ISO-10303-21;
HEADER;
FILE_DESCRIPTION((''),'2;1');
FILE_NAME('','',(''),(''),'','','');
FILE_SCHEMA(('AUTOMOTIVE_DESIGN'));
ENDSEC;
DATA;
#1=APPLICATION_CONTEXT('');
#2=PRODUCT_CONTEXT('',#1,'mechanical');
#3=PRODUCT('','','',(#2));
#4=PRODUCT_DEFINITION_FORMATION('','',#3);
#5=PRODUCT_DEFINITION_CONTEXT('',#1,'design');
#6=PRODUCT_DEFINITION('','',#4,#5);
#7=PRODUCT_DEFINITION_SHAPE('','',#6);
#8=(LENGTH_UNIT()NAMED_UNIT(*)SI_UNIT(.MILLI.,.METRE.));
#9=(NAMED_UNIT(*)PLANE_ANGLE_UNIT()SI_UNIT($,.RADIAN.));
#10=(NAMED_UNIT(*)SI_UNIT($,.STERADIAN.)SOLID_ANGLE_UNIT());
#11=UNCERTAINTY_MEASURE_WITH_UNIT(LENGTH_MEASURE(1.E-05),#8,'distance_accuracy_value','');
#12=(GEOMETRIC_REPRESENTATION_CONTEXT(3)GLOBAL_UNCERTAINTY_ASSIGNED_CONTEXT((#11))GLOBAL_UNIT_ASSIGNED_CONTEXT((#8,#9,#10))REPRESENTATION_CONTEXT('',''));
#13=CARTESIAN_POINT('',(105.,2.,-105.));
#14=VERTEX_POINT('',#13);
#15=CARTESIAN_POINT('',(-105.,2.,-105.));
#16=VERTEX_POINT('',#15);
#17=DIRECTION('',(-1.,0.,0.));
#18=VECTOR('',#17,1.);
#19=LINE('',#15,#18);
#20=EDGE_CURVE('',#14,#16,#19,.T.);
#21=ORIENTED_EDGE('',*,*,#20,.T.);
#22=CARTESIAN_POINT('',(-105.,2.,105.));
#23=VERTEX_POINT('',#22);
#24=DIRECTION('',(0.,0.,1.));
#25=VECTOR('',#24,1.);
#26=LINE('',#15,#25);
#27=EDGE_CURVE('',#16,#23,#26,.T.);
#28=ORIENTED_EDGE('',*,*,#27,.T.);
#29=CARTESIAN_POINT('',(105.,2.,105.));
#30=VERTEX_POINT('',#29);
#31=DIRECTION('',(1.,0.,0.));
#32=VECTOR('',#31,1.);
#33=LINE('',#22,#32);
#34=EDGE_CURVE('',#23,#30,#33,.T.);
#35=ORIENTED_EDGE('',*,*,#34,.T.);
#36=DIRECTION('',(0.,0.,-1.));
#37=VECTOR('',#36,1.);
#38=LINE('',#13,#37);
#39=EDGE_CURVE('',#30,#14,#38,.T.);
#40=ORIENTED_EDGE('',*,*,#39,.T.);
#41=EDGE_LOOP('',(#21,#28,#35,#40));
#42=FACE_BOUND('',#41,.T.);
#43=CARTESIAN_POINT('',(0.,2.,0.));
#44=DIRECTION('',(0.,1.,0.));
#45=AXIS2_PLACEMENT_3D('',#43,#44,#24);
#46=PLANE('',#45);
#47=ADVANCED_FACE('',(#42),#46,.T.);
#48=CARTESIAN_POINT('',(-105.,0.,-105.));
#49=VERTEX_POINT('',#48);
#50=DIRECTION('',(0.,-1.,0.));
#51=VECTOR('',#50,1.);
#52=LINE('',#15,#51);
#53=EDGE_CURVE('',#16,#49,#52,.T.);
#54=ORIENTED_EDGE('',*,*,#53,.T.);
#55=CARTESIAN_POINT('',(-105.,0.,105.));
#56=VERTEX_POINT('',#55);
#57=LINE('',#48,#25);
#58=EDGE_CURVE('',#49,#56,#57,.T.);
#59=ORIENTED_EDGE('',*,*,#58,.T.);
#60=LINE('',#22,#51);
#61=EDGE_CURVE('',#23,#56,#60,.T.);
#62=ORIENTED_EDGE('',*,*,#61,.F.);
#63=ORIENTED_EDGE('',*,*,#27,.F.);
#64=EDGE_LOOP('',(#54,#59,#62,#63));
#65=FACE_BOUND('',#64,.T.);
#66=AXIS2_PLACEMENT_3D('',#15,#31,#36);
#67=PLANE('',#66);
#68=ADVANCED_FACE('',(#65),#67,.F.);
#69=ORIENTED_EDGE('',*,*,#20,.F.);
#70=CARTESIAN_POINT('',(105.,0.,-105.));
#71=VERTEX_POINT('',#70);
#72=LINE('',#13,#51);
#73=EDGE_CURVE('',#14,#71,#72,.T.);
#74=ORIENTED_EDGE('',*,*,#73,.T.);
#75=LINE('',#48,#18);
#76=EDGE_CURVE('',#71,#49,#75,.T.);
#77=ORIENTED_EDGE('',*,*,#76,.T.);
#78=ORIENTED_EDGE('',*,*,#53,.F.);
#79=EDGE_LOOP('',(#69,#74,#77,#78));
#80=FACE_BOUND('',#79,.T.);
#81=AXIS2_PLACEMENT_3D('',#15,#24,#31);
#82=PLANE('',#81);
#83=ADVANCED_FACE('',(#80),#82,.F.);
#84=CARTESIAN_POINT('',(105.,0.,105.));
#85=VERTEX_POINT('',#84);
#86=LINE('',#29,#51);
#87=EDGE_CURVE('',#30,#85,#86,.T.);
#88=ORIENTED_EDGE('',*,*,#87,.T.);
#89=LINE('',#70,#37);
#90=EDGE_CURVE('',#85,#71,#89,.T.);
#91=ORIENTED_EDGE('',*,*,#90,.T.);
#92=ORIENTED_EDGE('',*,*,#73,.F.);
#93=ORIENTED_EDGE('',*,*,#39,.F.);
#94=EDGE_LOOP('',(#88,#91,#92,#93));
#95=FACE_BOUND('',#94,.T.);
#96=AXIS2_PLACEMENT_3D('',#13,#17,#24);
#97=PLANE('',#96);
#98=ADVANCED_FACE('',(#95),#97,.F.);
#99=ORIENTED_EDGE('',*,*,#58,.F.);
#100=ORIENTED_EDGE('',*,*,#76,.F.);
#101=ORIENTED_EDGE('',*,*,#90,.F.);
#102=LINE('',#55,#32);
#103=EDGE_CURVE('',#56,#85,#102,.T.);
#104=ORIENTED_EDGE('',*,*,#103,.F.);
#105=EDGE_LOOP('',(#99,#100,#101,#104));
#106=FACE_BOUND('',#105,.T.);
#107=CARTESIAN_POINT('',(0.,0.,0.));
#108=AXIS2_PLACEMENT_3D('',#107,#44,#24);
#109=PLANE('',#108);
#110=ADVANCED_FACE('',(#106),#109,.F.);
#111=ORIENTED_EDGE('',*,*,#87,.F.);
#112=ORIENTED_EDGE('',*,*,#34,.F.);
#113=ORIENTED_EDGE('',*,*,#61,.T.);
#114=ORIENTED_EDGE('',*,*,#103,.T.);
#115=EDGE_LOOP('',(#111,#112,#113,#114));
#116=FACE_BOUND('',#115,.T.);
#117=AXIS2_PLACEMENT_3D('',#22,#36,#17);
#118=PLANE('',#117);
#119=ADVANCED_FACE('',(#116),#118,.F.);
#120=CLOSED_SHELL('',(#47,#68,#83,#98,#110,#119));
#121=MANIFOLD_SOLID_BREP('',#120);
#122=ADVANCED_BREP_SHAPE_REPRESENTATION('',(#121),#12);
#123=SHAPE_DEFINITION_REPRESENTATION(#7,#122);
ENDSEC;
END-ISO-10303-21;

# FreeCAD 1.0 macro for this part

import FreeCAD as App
import Part
import Sketcher
from FreeCAD import Vector

doc = App.newDocument("Part")
body = doc.addObject("PartDesign::Body", "Body")

sketch1 = body.newObject("Sketcher::SketchObject", "Sketch")
sketch1.AttachmentSupport = (doc.getObject("XZ_Plane"), [""])
sketch1.MapMode = "FlatFace"
sketch1.addGeometry(Part.LineSegment(Vector(-105, -105, 0), Vector(-105, 105, 0)), False)
sketch1.addGeometry(Part.LineSegment(Vector(-105, 105, 0), Vector(105, 105, 0)), False)
sketch1.addGeometry(Part.LineSegment(Vector(105, 105, 0), Vector(105, -105, 0)), False)
sketch1.addGeometry(Part.LineSegment(Vector(105, -105, 0), Vector(-105, -105, 0)), False)
sketch1.addConstraint(Sketcher.Constraint("Coincident", 0, 2, 1, 1))
sketch1.addConstraint(Sketcher.Constraint("Coincident", 1, 2, 2, 1))
sketch1.addConstraint(Sketcher.Constraint("Coincident", 2, 2, 3, 1))
sketch1.addConstraint(Sketcher.Constraint("Coincident", 3, 2, 0, 1))
sketch1.addConstraint(Sketcher.Constraint("Vertical", 0))
sketch1.addConstraint(Sketcher.Constraint("Horizontal", 1))
sketch1.addConstraint(Sketcher.Constraint("Vertical", 2))
sketch1.addConstraint(Sketcher.Constraint("Horizontal", 3))
sketch1.addConstraint(Sketcher.Constraint("Symmetric", 0, 2, 2, 2, -1, 1))
sketch1.addConstraint(Sketcher.Constraint("Equal", 3, 0))
sketch1.addConstraint(Sketcher.Constraint("DistanceX", 1, 1, 1, 2, 210.0))
pad1 = body.newObject("PartDesign::Pad", "Pad")
pad1.Profile = sketch1
pad1.Length = 2
pad1.Reversed = True

doc.recompute()
